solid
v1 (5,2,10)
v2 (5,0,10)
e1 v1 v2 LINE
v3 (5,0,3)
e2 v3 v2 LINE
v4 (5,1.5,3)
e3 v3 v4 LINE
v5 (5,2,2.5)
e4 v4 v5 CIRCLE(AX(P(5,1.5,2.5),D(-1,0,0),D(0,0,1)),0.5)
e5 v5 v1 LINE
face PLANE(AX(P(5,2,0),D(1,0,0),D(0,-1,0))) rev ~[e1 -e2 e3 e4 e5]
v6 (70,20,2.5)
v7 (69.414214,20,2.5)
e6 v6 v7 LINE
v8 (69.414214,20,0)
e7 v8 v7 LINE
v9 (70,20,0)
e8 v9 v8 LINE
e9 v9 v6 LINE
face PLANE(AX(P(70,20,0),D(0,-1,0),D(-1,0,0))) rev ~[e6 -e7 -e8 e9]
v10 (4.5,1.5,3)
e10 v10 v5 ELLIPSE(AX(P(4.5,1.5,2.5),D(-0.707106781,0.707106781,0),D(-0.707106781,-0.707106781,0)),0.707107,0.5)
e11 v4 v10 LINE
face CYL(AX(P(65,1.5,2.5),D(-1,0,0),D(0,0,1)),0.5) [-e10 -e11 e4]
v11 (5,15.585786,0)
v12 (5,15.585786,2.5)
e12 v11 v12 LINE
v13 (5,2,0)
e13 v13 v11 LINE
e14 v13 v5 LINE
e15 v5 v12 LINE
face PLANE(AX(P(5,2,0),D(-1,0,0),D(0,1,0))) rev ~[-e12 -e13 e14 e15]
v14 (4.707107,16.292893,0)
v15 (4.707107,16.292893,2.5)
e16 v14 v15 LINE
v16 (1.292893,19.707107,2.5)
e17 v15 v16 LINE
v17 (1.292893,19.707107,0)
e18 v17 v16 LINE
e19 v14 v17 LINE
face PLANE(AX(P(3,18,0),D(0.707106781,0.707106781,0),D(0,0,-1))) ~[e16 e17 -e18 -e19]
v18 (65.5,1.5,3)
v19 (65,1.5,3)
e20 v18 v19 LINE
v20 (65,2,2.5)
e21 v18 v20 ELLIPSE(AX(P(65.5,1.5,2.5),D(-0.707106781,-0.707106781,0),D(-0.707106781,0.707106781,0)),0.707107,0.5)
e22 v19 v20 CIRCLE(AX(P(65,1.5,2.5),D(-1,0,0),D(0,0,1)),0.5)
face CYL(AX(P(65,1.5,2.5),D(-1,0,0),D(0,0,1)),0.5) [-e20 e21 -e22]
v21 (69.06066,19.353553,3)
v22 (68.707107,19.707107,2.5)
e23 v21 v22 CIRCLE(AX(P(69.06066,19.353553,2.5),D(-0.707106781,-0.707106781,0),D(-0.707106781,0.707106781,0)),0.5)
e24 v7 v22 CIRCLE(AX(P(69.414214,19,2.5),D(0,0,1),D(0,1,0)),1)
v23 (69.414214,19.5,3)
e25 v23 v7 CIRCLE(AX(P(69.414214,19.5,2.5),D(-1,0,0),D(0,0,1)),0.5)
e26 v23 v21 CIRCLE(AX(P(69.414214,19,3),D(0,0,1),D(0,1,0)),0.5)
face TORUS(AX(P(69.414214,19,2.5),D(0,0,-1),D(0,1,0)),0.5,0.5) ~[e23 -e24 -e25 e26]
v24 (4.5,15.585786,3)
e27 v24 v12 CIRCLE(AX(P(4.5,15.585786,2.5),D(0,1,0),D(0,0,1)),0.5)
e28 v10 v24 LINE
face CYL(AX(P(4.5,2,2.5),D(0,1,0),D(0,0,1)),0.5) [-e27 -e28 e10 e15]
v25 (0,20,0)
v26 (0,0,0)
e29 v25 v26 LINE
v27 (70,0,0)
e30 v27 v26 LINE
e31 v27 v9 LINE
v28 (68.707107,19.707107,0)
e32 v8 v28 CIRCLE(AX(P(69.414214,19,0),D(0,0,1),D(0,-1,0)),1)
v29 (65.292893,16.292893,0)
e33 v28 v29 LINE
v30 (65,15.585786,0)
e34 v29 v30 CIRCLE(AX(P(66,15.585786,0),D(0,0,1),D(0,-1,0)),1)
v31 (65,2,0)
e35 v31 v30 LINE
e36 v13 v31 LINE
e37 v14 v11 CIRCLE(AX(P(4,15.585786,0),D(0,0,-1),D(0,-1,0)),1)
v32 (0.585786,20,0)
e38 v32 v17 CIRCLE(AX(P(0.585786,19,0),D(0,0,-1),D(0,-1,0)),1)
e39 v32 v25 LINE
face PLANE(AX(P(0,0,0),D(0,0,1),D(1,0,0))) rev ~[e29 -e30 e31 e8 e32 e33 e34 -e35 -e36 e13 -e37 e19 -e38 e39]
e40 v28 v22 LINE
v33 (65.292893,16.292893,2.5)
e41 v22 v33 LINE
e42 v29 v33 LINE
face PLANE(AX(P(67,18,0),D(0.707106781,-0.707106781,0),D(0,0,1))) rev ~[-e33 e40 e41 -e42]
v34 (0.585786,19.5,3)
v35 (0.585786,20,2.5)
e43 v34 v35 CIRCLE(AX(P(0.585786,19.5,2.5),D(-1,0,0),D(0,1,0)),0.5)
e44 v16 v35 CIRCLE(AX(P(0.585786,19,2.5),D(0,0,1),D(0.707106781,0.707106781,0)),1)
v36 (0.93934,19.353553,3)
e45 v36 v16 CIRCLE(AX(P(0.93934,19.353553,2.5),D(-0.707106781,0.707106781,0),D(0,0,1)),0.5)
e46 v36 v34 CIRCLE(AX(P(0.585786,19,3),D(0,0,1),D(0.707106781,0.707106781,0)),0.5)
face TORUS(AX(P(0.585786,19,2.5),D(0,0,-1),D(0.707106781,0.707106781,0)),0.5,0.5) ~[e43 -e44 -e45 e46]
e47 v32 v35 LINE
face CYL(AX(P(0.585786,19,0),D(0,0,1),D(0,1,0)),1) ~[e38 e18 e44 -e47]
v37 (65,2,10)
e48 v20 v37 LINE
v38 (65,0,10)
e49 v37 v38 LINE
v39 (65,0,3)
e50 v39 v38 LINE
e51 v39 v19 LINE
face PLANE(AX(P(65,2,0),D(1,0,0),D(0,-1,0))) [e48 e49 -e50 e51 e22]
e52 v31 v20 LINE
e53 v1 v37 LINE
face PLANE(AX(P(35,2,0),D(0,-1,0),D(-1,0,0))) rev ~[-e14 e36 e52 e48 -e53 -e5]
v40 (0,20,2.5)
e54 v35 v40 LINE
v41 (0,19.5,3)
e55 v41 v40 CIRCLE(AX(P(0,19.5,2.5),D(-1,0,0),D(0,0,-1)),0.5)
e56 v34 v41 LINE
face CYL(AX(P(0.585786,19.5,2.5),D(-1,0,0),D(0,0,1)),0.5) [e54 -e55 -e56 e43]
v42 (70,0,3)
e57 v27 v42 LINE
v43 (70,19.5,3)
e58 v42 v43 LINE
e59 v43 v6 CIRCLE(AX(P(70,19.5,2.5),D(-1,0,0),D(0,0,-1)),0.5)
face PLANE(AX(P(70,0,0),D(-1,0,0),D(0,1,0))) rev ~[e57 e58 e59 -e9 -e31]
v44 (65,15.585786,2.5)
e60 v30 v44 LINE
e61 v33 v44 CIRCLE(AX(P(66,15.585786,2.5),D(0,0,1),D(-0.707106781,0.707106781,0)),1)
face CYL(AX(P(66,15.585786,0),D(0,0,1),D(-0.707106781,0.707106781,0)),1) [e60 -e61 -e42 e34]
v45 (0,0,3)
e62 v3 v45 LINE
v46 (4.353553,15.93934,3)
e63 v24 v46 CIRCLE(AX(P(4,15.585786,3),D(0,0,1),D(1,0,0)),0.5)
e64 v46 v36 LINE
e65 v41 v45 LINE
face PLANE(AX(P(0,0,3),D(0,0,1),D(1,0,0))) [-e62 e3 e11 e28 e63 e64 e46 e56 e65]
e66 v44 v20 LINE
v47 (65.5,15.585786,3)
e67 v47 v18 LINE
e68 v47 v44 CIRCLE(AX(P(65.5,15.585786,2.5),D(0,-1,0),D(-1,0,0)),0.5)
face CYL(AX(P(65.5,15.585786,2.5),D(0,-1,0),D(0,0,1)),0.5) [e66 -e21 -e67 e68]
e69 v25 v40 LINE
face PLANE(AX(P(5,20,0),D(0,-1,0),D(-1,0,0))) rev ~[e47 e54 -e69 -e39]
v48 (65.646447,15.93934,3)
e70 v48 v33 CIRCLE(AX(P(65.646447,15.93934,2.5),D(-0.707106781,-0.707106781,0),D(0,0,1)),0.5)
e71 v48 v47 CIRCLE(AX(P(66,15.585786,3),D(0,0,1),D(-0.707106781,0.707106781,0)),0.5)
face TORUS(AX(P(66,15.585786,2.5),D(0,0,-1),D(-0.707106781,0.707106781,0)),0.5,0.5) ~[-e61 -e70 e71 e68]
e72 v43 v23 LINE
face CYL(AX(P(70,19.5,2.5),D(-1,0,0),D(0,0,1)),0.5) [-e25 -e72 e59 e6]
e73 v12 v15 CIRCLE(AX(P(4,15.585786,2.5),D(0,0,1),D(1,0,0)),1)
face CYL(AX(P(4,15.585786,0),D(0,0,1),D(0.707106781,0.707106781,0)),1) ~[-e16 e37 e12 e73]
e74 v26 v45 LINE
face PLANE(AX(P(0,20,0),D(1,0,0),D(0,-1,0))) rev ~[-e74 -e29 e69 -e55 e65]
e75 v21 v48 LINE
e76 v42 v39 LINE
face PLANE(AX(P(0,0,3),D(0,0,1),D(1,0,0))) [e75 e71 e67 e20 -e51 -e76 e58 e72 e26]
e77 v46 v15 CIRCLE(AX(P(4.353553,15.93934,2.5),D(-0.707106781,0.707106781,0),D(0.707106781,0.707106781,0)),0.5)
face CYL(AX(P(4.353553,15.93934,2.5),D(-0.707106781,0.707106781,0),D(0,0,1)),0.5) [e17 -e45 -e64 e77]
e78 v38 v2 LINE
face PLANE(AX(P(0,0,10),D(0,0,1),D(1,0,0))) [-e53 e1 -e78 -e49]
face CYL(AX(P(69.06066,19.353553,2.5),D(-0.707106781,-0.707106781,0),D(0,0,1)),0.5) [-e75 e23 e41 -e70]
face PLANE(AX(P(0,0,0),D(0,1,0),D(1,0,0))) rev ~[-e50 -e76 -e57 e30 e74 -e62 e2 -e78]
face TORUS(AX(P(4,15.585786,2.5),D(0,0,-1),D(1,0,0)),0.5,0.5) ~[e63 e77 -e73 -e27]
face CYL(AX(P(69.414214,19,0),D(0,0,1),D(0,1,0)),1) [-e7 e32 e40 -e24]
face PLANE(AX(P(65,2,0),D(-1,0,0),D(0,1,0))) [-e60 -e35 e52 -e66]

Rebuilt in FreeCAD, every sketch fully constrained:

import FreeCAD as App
import Part
import Sketcher
from FreeCAD import Vector
Q = App.Units.Quantity


def edges_at(feature, points):
    """Names of the edges that pass closest to the given points."""
    edges = feature.Shape.Edges
    near = lambda p: min(range(len(edges)), key=lambda i: edges[i].distToShape(Part.Vertex(*p))[0])
    return sorted({f"Edge{near(p) + 1}" for p in points})


def add_polygon(sketch, points):
    """Adds a closed chain of lines whose ends are joined by coincident constraints."""
    first, n = sketch.GeometryCount, len(points)
    for a, b in zip(points, points[1:] + points[:1]):
        sketch.addGeometry(Part.LineSegment(App.Vector(*a, 0), App.Vector(*b, 0)), False)
    for i in range(n):
        sketch.addConstraint(Sketcher.Constraint("Coincident", first + i, 2, first + (i + 1) % n, 1))

doc = App.newDocument("Part")
body = doc.addObject("PartDesign::Body", "Body")

sketch1 = body.newObject("Sketcher::SketchObject", "Sketch")
sketch1.AttachmentSupport = (doc.getObject("XY_Plane"), [""])
sketch1.MapMode = "FlatFace"
add_polygon(sketch1, [(0, 20), (0, 0), (70, 0), (70, 20), (65, 20), (65, 2), (5, 2), (5, 20)])
sketch1.addConstraint(Sketcher.Constraint("Vertical", 0))
sketch1.addConstraint(Sketcher.Constraint("Horizontal", 1))
sketch1.addConstraint(Sketcher.Constraint("Vertical", 2))
sketch1.addConstraint(Sketcher.Constraint("Horizontal", 3))
sketch1.addConstraint(Sketcher.Constraint("Vertical", 4))
sketch1.addConstraint(Sketcher.Constraint("Horizontal", 5))
sketch1.addConstraint(Sketcher.Constraint("Vertical", 6))
sketch1.addConstraint(Sketcher.Constraint("Horizontal", 7))
sketch1.addConstraint(Sketcher.Constraint("Coincident", 0, 2, -1, 1))
sketch1.addConstraint(Sketcher.Constraint("Horizontal", 3, 2, 6, 2))
sketch1.addConstraint(Sketcher.Constraint("Equal", 3, 7))
sketch1.addConstraint(Sketcher.Constraint("DistanceX", 1, 1, 1, 2, Q("70 mm")))
sketch1.addConstraint(Sketcher.Constraint("DistanceY", 0, 2, 0, 1, Q("20 mm")))
sketch1.addConstraint(Sketcher.Constraint("DistanceY", -1, 1, 4, 2, Q("2 mm")))
sketch1.addConstraint(Sketcher.Constraint("DistanceX", 3, 2, 3, 1, Q("5 mm")))
pad1 = body.newObject("PartDesign::Pad", "Pad")
pad1.Profile = sketch1
pad1.Length = 3
doc.recompute()

chamfer = body.newObject("PartDesign::Chamfer", "Chamfer")
chamfer.Base = (pad1, edges_at(pad1, [(65, 20, 1.5)]))
chamfer.ChamferType = "Two distances"
chamfer.Size = 4
chamfer.Size2 = 4
doc.recompute()

chamfer2 = body.newObject("PartDesign::Chamfer", "Chamfer001")
chamfer2.Base = (chamfer, edges_at(chamfer, [(5, 20, 1.5)]))
chamfer2.ChamferType = "Two distances"
chamfer2.Size = 4
chamfer2.Size2 = 4
doc.recompute()

fillet = body.newObject("PartDesign::Fillet", "Fillet")
fillet.Base = (chamfer2, edges_at(chamfer2, [
    (5, 16, 1.5),
    (1, 20, 1.5),
    (65, 16, 1.5),
    (69, 20, 1.5),
]))
fillet.Radius = 1
doc.recompute()

fillet2 = body.newObject("PartDesign::Fillet", "Fillet001")
fillet2.Base = (fillet, edges_at(fillet, [
    (35, 2, 3),
    (69.031, 19.924, 3),
    (67, 18, 3),
    (65.076, 15.969, 3),
    (65, 8.793, 3),
    (5, 8.793, 3),
    (4.924, 15.969, 3),
    (3, 18, 3),
    (0.969, 19.924, 3),
]))
fillet2.Radius = 0.5

sketch2 = body.newObject("Sketcher::SketchObject", "Sketch001")
sketch2.AttachmentSupport = (doc.getObject("XY_Plane"), [""])
sketch2.MapMode = "FlatFace"
add_polygon(sketch2, [(5, 2), (5, 0), (65, 0), (65, 2)])
sketch2.addConstraint(Sketcher.Constraint("Vertical", 0))
sketch2.addConstraint(Sketcher.Constraint("Horizontal", 1))
sketch2.addConstraint(Sketcher.Constraint("Vertical", 2))
sketch2.addConstraint(Sketcher.Constraint("Horizontal", 3))
sketch2.addConstraint(Sketcher.Constraint("PointOnObject", 0, 2, -1))
sketch2.addConstraint(Sketcher.Constraint("DistanceY", 0, 2, 0, 1, Q("2 mm")))
sketch2.addConstraint(Sketcher.Constraint("DistanceX", 1, 1, 1, 2, Q("60 mm")))
sketch2.addConstraint(Sketcher.Constraint("DistanceX", -1, 1, 0, 2, Q("5 mm")))
pad2 = body.newObject("PartDesign::Pad", "Pad001")
pad2.Profile = sketch2
pad2.Length = 10

doc.recompute()
